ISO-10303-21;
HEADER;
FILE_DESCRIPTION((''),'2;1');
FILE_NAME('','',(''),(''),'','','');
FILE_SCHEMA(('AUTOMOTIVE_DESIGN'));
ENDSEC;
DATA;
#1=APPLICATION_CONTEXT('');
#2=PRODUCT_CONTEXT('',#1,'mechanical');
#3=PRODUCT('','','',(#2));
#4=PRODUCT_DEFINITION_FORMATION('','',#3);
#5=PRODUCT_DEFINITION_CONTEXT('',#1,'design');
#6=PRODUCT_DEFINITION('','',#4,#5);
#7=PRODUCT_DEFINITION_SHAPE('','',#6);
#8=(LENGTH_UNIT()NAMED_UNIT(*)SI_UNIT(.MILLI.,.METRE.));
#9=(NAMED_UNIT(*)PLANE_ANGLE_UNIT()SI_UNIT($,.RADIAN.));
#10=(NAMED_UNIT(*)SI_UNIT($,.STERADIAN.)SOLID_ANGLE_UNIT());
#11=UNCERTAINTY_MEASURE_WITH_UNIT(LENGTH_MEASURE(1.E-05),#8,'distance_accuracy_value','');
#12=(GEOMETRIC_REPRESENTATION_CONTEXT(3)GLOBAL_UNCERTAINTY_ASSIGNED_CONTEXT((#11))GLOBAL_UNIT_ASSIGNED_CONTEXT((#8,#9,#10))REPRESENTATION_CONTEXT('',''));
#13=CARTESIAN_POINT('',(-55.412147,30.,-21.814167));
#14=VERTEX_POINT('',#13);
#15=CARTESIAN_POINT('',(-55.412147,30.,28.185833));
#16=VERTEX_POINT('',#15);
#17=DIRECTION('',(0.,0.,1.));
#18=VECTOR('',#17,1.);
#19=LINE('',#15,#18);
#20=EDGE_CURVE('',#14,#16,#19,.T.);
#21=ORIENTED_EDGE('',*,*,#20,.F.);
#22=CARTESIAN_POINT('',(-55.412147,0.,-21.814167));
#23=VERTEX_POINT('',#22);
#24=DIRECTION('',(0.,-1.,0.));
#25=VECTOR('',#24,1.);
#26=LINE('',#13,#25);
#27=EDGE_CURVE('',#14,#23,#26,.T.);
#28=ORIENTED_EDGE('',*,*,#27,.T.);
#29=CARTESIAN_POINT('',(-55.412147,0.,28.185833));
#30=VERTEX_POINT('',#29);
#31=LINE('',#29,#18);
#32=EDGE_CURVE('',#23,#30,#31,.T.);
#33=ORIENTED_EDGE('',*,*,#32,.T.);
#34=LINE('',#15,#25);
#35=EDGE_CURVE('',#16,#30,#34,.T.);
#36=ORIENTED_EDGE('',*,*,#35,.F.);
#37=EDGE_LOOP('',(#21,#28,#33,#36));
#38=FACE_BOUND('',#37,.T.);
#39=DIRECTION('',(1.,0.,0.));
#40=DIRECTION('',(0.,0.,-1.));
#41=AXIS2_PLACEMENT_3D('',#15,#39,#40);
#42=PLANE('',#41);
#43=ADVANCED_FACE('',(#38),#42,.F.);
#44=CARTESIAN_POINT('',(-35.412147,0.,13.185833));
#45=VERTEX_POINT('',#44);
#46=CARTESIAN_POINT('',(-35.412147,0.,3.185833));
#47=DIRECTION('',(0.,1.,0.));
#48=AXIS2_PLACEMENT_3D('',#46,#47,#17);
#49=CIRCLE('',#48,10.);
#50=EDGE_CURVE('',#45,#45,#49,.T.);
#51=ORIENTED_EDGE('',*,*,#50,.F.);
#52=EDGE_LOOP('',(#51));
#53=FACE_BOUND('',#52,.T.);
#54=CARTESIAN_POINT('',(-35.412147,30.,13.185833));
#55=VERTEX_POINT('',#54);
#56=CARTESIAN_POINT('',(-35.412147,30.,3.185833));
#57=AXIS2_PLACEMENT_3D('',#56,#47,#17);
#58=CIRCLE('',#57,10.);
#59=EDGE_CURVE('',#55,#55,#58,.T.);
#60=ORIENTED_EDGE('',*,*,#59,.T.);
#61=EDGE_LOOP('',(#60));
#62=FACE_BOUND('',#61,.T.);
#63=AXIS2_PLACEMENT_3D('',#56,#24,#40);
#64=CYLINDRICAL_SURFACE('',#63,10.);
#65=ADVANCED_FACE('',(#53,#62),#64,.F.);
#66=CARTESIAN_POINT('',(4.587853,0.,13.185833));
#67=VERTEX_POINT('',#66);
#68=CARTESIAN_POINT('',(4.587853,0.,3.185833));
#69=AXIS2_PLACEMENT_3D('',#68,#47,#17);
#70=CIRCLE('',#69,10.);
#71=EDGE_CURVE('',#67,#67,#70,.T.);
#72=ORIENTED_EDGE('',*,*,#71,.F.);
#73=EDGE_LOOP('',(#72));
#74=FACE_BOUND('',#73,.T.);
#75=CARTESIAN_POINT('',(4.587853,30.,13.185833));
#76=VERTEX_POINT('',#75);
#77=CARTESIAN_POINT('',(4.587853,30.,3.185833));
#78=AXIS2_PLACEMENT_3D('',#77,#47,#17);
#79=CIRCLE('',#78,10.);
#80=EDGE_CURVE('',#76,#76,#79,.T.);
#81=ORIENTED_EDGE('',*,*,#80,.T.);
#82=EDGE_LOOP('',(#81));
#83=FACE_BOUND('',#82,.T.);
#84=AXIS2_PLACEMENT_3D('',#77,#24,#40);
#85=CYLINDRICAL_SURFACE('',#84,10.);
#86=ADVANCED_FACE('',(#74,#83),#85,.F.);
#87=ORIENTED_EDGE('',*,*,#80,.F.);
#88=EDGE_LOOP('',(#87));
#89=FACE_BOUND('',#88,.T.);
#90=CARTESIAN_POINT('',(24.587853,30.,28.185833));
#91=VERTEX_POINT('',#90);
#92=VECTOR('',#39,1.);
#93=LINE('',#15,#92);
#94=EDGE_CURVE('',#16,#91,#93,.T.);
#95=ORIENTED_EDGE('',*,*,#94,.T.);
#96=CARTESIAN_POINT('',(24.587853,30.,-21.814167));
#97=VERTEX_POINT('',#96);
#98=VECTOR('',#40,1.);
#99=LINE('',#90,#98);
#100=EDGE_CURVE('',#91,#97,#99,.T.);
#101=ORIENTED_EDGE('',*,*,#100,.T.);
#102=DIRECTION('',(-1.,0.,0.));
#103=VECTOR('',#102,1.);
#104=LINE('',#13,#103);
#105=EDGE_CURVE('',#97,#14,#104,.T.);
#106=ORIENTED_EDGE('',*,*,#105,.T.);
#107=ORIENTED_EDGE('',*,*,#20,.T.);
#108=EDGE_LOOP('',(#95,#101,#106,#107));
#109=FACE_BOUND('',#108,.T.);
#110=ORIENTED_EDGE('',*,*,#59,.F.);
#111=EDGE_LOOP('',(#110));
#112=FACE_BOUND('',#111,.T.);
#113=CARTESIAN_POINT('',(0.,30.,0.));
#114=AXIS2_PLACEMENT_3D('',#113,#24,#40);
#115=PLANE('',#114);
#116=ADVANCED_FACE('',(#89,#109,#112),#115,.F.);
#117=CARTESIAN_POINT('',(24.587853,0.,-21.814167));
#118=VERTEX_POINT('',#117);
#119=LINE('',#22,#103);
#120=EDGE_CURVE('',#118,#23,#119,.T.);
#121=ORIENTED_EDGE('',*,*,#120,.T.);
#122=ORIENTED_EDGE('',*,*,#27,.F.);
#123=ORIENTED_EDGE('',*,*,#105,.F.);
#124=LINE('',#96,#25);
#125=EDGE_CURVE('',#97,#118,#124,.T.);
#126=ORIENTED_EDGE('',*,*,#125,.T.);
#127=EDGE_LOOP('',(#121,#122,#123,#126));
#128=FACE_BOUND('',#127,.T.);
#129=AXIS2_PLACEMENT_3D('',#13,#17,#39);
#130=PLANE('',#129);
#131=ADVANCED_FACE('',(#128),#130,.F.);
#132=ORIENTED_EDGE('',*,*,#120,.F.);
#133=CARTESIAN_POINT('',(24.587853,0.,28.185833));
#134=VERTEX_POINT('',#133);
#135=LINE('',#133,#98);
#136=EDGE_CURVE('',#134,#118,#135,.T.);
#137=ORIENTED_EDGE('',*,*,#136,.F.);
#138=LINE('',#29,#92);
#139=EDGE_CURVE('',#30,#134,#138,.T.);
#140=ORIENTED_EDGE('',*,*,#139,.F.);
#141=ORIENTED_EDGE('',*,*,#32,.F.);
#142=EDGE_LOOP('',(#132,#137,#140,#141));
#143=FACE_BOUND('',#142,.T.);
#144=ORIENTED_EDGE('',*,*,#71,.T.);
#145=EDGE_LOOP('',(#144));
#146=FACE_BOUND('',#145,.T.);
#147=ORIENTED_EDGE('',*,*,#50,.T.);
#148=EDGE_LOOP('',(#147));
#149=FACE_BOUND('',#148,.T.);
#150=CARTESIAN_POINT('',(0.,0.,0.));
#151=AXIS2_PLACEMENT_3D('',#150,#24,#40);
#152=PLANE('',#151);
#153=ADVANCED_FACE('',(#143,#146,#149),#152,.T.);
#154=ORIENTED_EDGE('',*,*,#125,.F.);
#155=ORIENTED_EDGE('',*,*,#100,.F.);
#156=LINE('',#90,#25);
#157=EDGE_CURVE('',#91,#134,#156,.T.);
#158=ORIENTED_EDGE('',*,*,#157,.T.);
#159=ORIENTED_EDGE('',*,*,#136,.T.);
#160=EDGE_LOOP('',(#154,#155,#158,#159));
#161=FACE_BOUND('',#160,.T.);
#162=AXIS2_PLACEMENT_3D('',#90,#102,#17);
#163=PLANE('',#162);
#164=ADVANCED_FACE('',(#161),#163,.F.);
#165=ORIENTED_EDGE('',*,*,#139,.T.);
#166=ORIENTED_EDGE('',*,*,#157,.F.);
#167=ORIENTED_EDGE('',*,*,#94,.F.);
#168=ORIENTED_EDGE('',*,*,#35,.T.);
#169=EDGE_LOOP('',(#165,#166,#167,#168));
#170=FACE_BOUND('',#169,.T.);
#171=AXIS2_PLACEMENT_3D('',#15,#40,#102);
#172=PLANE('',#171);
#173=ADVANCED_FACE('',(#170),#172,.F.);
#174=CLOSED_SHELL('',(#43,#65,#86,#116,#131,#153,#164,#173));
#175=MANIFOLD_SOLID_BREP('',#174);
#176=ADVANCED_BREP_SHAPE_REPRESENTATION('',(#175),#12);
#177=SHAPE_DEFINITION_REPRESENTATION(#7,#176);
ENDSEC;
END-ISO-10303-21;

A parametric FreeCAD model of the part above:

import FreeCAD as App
import Part
import Sketcher

V = App.Vector


def add_polygon(sketch, points):
    """Adds a closed chain of lines whose ends are joined by coincident constraints."""
    first, n = sketch.GeometryCount, len(points)
    for a, b in zip(points, points[1:] + points[:1]):
        sketch.addGeometry(Part.LineSegment(App.Vector(*a, 0), App.Vector(*b, 0)), False)
    for i in range(n):
        sketch.addConstraint(Sketcher.Constraint("Coincident", first + i, 2, first + (i + 1) % n, 1))

doc = App.newDocument("Part")
body = doc.addObject("PartDesign::Body", "Body")

sketch1 = body.newObject("Sketcher::SketchObject", "Sketch")
sketch1.AttachmentSupport = (doc.getObject("XZ_Plane"), [""])
sketch1.MapMode = "FlatFace"
add_polygon(sketch1, [(-55.412147, -21.814167), (-55.412147, 28.185833), (24.587853, 28.185833), (24.587853, -21.814167)])
sketch1.addGeometry(Part.Circle(V(-35.412147, 3.185833, 0), V(0, 0, 1), 10), False)
sketch1.addGeometry(Part.Circle(V(4.587853, 3.185833, 0), V(0, 0, 1), 10), False)
sketch1.addConstraint([
    Sketcher.Constraint("Vertical", 0),
    Sketcher.Constraint("Horizontal", 1),
    Sketcher.Constraint("Vertical", 2),
    Sketcher.Constraint("Horizontal", 3),
    Sketcher.Constraint("Equal", 4, 5),
    Sketcher.Constraint("Horizontal", 4, 3, 5, 3),
    Sketcher.Constraint("Diameter", 4, 20.0),
    Sketcher.Constraint("DistanceX", 1, 1, 1, 2, 80.0),
    Sketcher.Constraint("DistanceY", 0, 1, 0, 2, 50.0),
    Sketcher.Constraint("DistanceX", 4, 3, 5, 3, 40.0),
    Sketcher.Constraint("DistanceX", 0, 2, 4, 3, 20.0),
    Sketcher.Constraint("DistanceY", 4, 3, 0, 2, 25.0),
    Sketcher.Constraint("DistanceX", 4, 3, -1, 1, 35.412147),
    Sketcher.Constraint("DistanceY", -1, 1, 4, 3, 3.185833),
])
pad1 = body.newObject("PartDesign::Pad", "Pad")
pad1.Profile = sketch1
pad1.Length = 30
pad1.Reversed = True

doc.recompute()
